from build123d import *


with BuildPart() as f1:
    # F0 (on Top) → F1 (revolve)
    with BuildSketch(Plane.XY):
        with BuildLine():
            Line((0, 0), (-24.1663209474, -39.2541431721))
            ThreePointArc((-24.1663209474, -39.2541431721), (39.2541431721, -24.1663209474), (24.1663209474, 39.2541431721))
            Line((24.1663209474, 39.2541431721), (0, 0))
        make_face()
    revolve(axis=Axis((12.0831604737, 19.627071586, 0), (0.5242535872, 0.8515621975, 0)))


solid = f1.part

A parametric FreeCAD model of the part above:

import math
import FreeCAD as App
import Part
import Sketcher

doc = App.newDocument("Part")
body = doc.addObject("PartDesign::Body", "Body")

# Sketch on XY plane
sketch1 = body.newObject("Sketcher::SketchObject", "Sketch")
sketch1.AttachmentSupport = (doc.getObject("XY_Plane"), [""])
sketch1.MapMode = "FlatFace"
sketch1.addGeometry([
    Part.ArcOfCircle(Part.Circle(App.Vector(0, 0, 0), App.Vector(0, 0, 1), 46), math.radians(-122), math.radians(58)),
    Part.LineSegment(App.Vector(24, 39, 0), App.Vector(-24, -39, 0)),
], False)
sketch1.addGeometry(Part.LineSegment(App.Vector(-24, -39, 0), App.Vector(24, 39, 0)), True)  # axis
sketch1.addConstraint([
    Sketcher.Constraint("Coincident", 0, 1, 1, 2),
    Sketcher.Constraint("Coincident", 1, 1, 0, 2),
    Sketcher.Constraint("Coincident", 0, 3, -1, 1),
    Sketcher.Constraint("Coincident", 2, 1, 0, 1),
    Sketcher.Constraint("Coincident", 2, 2, 1, 1),
    Sketcher.Constraint("Radius", 0, 46.096625),
    Sketcher.Constraint("DistanceX", 0, 1, -1, 1, 24.166321),
    Sketcher.Constraint("DistanceX", -1, 1, 1, 1, 24.166321),
])
revolution = body.newObject("PartDesign::Revolution", "Revolution")
revolution.Profile = sketch1
revolution.ReferenceAxis = (sketch1, ["Axis0"])
revolution.Angle = 360

doc.recompute()
